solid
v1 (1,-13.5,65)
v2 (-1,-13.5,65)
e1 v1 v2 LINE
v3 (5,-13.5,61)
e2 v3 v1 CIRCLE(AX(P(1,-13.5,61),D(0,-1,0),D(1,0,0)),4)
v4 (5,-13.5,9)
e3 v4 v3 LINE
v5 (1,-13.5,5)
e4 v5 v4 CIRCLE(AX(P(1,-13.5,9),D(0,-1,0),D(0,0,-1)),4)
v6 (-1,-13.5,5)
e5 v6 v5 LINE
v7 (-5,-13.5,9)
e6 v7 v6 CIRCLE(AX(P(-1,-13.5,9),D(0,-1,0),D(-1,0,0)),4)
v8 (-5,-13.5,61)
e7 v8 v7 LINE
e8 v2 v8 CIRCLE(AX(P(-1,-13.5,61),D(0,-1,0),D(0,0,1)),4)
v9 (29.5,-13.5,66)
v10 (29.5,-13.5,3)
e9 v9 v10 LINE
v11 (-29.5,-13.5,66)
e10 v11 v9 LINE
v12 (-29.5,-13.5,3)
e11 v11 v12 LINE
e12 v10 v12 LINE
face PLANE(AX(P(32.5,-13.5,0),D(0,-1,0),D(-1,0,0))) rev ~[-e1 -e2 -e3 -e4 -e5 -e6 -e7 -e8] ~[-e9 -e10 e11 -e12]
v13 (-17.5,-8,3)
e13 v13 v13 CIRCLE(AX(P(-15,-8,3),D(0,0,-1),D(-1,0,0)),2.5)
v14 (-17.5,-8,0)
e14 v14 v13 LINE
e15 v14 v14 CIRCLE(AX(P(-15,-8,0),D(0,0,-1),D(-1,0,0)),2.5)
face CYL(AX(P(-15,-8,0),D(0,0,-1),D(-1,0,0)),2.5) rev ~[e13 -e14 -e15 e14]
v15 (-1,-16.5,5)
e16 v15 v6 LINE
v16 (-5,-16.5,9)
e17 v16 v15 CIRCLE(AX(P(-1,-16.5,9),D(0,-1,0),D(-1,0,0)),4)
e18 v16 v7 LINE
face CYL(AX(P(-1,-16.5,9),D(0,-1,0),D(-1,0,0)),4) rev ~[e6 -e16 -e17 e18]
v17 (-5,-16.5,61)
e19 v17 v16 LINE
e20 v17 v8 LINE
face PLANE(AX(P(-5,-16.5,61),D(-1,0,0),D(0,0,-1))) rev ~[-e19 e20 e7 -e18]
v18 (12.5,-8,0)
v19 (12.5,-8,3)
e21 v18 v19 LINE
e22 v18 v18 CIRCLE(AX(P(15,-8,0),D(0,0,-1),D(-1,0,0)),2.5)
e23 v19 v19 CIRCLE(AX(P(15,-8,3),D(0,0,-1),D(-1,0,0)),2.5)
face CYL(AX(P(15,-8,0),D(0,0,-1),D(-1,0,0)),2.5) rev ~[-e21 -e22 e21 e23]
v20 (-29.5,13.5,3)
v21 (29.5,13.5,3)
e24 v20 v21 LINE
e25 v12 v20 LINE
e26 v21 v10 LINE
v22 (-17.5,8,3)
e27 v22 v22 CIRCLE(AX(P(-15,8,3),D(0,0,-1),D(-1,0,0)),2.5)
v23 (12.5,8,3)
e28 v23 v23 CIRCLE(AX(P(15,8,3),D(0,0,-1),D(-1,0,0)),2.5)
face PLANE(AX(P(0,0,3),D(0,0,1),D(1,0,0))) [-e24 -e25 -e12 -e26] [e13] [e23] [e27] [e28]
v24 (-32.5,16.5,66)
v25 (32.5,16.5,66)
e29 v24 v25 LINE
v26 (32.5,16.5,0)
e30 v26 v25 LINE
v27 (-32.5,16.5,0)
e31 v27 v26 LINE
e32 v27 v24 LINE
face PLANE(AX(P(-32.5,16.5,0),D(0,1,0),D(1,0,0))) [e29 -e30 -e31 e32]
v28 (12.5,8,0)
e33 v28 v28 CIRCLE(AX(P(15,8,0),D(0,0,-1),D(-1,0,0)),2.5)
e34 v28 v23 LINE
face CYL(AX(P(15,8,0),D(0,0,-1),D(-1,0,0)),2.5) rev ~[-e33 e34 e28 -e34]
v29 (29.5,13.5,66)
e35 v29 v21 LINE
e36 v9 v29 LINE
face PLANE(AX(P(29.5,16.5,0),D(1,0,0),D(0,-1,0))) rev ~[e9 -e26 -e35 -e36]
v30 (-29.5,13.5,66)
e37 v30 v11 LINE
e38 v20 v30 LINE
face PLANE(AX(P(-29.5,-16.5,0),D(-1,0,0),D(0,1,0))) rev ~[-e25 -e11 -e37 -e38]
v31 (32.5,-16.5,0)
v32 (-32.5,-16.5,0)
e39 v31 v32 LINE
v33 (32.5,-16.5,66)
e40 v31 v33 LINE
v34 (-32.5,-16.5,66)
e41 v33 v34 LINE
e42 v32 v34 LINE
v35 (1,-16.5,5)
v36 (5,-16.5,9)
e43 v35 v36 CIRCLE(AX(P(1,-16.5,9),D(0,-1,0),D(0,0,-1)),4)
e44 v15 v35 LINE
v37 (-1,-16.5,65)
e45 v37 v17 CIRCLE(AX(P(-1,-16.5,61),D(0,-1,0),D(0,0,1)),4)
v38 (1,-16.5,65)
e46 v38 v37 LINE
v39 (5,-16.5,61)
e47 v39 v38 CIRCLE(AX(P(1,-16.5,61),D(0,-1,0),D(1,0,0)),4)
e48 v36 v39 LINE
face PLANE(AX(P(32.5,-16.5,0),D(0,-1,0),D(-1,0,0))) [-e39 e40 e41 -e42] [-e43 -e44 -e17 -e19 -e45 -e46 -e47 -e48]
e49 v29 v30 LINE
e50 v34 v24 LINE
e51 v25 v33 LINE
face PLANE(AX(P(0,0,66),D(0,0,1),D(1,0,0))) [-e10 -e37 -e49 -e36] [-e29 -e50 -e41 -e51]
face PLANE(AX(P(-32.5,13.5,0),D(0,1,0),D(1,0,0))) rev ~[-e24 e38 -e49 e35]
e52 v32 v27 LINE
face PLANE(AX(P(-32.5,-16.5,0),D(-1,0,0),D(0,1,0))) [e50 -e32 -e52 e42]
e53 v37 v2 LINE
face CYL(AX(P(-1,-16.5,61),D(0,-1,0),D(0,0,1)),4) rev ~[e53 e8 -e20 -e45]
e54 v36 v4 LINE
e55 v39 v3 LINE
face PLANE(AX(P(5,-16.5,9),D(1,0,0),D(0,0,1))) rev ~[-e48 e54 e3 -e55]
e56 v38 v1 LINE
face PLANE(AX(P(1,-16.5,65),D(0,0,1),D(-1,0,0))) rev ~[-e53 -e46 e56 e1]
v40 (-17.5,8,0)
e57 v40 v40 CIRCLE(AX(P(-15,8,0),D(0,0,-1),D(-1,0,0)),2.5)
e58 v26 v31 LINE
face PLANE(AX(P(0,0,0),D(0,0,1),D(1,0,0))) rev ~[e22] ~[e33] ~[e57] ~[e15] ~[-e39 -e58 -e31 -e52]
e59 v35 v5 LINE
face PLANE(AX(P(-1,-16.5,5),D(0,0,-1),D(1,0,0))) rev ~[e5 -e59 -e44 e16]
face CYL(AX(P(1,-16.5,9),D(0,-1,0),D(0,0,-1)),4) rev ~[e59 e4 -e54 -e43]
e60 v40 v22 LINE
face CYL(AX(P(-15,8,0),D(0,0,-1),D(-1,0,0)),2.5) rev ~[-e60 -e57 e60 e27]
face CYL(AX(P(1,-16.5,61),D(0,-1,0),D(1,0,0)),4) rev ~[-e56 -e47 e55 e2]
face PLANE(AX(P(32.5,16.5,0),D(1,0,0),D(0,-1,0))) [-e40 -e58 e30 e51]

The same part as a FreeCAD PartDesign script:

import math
import FreeCAD as App
import Part
import Sketcher

V = App.Vector


def faces_at(feature, points):
    """Names of the faces that lie closest to the given points."""
    faces = feature.Shape.Faces
    near = lambda p: min(range(len(faces)), key=lambda i: faces[i].distToShape(Part.Vertex(*p))[0])
    return sorted({f"Face{near(p) + 1}" for p in points})

doc = App.newDocument("Part")
body = doc.addObject("PartDesign::Body", "Body")

# Sketch on XY plane
sketch1 = body.newObject("Sketcher::SketchObject", "Sketch")
sketch1.AttachmentSupport = (doc.getObject("XY_Plane"), [""])
sketch1.MapMode = "FlatFace"
sketch1.addGeometry(Part.LineSegment(V(32, 16, 0), V(-32, 16, 0)), False)
sketch1.addGeometry(Part.LineSegment(V(-32, 16, 0), V(-32, -16, 0)), False)
sketch1.addGeometry(Part.LineSegment(V(-32, -16, 0), V(32, -16, 0)), False)
sketch1.addGeometry(Part.LineSegment(V(32, -16, 0), V(32, 16, 0)), False)
sketch1.addConstraint(Sketcher.Constraint("Coincident", 0, 2, 1, 1))
sketch1.addConstraint(Sketcher.Constraint("Coincident", 1, 2, 2, 1))
sketch1.addConstraint(Sketcher.Constraint("Coincident", 2, 2, 3, 1))
sketch1.addConstraint(Sketcher.Constraint("Coincident", 3, 2, 0, 1))
sketch1.addConstraint(Sketcher.Constraint("Horizontal", 0))
sketch1.addConstraint(Sketcher.Constraint("Vertical", 1))
sketch1.addConstraint(Sketcher.Constraint("Horizontal", 2))
sketch1.addConstraint(Sketcher.Constraint("Vertical", 3))
sketch1.addConstraint(Sketcher.Constraint("Symmetric", 0, 2, 2, 2, -1, 1))
sketch1.addConstraint(Sketcher.Constraint("DistanceX", 0, 2, 0, 1, 65.0))
sketch1.addConstraint(Sketcher.Constraint("DistanceY", 1, 2, 1, 1, 33.0))
pad1 = body.newObject("PartDesign::Pad", "Pad")
pad1.Profile = sketch1
pad1.Length = 66
doc.recompute()

thickness = body.newObject("PartDesign::Thickness", "Thickness")
thickness.Base = (pad1, faces_at(pad1, [(-10.833, 5.5, 66)]))
thickness.Value = 3
thickness.Reversed = True
thickness.Join = "Intersection"

# Sketch on XZ plane
sketch2 = body.newObject("Sketcher::SketchObject", "Sketch001")
sketch2.AttachmentSupport = (doc.getObject("XZ_Plane"), [""])
sketch2.MapMode = "FlatFace"
sketch2.AttachmentOffset = App.Placement(V(0, 0, 16.5), App.Rotation())
sketch2.addGeometry(Part.ArcOfCircle(Part.Circle(V(1, 61, 0), V(0, 0, 1), 4), math.radians(0), math.radians(90)), False)
sketch2.addGeometry(Part.LineSegment(V(1, 65, 0), V(-1, 65, 0)), False)
sketch2.addGeometry(Part.ArcOfCircle(Part.Circle(V(-1, 61, 0), V(0, 0, 1), 4), math.radians(90), math.radians(180)), False)
sketch2.addGeometry(Part.LineSegment(V(-5, 61, 0), V(-5, 9, 0)), False)
sketch2.addGeometry(Part.ArcOfCircle(Part.Circle(V(-1, 9, 0), V(0, 0, 1), 4), math.radians(180), math.radians(270)), False)
sketch2.addGeometry(Part.LineSegment(V(-1, 5, 0), V(1, 5, 0)), False)
sketch2.addGeometry(Part.ArcOfCircle(Part.Circle(V(1, 9, 0), V(0, 0, 1), 4), math.radians(-90), math.radians(0)), False)
sketch2.addGeometry(Part.LineSegment(V(5, 9, 0), V(5, 61, 0)), False)
sketch2.addConstraint(Sketcher.Constraint("Tangent", 0, 2, 1, 1))
sketch2.addConstraint(Sketcher.Constraint("Tangent", 1, 2, 2, 1))
sketch2.addConstraint(Sketcher.Constraint("Tangent", 2, 2, 3, 1))
sketch2.addConstraint(Sketcher.Constraint("Tangent", 3, 2, 4, 1))
sketch2.addConstraint(Sketcher.Constraint("Tangent", 4, 2, 5, 1))
sketch2.addConstraint(Sketcher.Constraint("Tangent", 5, 2, 6, 1))
sketch2.addConstraint(Sketcher.Constraint("Tangent", 6, 2, 7, 1))
sketch2.addConstraint(Sketcher.Constraint("Tangent", 7, 2, 0, 1))
sketch2.addConstraint(Sketcher.Constraint("Horizontal", 1))
sketch2.addConstraint(Sketcher.Constraint("Vertical", 3))
sketch2.addConstraint(Sketcher.Constraint("Horizontal", 5))
sketch2.addConstraint(Sketcher.Constraint("Vertical", 7))
sketch2.addConstraint(Sketcher.Constraint("Equal", 0, 2))
sketch2.addConstraint(Sketcher.Constraint("Equal", 2, 4))
sketch2.addConstraint(Sketcher.Constraint("Equal", 4, 6))
sketch2.addConstraint(Sketcher.Constraint("Radius", 0, 4.0))
sketch2.addConstraint(Sketcher.Constraint("DistanceX", 2, 2, -1, 1, 5.0))
sketch2.addConstraint(Sketcher.Constraint("DistanceY", -1, 1, 4, 2, 5.0))
sketch2.addConstraint(Sketcher.Constraint("DistanceX", -1, 1, 6, 2, 5.0))
sketch2.addConstraint(Sketcher.Constraint("DistanceY", 3, 2, 3, 1, 52.0))
pocket1 = body.newObject("PartDesign::Pocket", "Pocket")
pocket1.Profile = sketch2
pocket1.Length = 30

# Sketch on XY plane
sketch3 = body.newObject("Sketcher::SketchObject", "Sketch002")
sketch3.AttachmentSupport = (doc.getObject("XY_Plane"), [""])
sketch3.MapMode = "FlatFace"
sketch3.addGeometry(Part.Circle(V(15, -8, 0), V(0, 0, 1), 2.5), False)
sketch3.addGeometry(Part.Circle(V(15, 8, 0), V(0, 0, 1), 2.5), False)
sketch3.addGeometry(Part.Circle(V(-15, -8, 0), V(0, 0, 1), 2.5), False)
sketch3.addGeometry(Part.Circle(V(-15, 8, 0), V(0, 0, 1), 2.5), False)
sketch3.addConstraint(Sketcher.Constraint("Equal", 0, 1))
sketch3.addConstraint(Sketcher.Constraint("Equal", 1, 2))
sketch3.addConstraint(Sketcher.Constraint("Equal", 2, 3))
sketch3.addConstraint(Sketcher.Constraint("Symmetric", 1, 3, 2, 3, -1, 1))
sketch3.addConstraint(Sketcher.Constraint("Symmetric", 0, 3, 3, 3, -1, 1))
sketch3.addConstraint(Sketcher.Constraint("Symmetric", 0, 3, 2, 3, -2))
sketch3.addConstraint(Sketcher.Constraint("Diameter", 0, 5.0))
sketch3.addConstraint(Sketcher.Constraint("DistanceX", -1, 1, 0, 3, 15.0))
sketch3.addConstraint(Sketcher.Constraint("DistanceY", 0, 3, -1, 1, 8.0))
pocket2 = body.newObject("PartDesign::Pocket", "Pocket001")
pocket2.Profile = sketch3
pocket2.Type = "ThroughAll"
pocket2.Reversed = True

doc.recompute()
